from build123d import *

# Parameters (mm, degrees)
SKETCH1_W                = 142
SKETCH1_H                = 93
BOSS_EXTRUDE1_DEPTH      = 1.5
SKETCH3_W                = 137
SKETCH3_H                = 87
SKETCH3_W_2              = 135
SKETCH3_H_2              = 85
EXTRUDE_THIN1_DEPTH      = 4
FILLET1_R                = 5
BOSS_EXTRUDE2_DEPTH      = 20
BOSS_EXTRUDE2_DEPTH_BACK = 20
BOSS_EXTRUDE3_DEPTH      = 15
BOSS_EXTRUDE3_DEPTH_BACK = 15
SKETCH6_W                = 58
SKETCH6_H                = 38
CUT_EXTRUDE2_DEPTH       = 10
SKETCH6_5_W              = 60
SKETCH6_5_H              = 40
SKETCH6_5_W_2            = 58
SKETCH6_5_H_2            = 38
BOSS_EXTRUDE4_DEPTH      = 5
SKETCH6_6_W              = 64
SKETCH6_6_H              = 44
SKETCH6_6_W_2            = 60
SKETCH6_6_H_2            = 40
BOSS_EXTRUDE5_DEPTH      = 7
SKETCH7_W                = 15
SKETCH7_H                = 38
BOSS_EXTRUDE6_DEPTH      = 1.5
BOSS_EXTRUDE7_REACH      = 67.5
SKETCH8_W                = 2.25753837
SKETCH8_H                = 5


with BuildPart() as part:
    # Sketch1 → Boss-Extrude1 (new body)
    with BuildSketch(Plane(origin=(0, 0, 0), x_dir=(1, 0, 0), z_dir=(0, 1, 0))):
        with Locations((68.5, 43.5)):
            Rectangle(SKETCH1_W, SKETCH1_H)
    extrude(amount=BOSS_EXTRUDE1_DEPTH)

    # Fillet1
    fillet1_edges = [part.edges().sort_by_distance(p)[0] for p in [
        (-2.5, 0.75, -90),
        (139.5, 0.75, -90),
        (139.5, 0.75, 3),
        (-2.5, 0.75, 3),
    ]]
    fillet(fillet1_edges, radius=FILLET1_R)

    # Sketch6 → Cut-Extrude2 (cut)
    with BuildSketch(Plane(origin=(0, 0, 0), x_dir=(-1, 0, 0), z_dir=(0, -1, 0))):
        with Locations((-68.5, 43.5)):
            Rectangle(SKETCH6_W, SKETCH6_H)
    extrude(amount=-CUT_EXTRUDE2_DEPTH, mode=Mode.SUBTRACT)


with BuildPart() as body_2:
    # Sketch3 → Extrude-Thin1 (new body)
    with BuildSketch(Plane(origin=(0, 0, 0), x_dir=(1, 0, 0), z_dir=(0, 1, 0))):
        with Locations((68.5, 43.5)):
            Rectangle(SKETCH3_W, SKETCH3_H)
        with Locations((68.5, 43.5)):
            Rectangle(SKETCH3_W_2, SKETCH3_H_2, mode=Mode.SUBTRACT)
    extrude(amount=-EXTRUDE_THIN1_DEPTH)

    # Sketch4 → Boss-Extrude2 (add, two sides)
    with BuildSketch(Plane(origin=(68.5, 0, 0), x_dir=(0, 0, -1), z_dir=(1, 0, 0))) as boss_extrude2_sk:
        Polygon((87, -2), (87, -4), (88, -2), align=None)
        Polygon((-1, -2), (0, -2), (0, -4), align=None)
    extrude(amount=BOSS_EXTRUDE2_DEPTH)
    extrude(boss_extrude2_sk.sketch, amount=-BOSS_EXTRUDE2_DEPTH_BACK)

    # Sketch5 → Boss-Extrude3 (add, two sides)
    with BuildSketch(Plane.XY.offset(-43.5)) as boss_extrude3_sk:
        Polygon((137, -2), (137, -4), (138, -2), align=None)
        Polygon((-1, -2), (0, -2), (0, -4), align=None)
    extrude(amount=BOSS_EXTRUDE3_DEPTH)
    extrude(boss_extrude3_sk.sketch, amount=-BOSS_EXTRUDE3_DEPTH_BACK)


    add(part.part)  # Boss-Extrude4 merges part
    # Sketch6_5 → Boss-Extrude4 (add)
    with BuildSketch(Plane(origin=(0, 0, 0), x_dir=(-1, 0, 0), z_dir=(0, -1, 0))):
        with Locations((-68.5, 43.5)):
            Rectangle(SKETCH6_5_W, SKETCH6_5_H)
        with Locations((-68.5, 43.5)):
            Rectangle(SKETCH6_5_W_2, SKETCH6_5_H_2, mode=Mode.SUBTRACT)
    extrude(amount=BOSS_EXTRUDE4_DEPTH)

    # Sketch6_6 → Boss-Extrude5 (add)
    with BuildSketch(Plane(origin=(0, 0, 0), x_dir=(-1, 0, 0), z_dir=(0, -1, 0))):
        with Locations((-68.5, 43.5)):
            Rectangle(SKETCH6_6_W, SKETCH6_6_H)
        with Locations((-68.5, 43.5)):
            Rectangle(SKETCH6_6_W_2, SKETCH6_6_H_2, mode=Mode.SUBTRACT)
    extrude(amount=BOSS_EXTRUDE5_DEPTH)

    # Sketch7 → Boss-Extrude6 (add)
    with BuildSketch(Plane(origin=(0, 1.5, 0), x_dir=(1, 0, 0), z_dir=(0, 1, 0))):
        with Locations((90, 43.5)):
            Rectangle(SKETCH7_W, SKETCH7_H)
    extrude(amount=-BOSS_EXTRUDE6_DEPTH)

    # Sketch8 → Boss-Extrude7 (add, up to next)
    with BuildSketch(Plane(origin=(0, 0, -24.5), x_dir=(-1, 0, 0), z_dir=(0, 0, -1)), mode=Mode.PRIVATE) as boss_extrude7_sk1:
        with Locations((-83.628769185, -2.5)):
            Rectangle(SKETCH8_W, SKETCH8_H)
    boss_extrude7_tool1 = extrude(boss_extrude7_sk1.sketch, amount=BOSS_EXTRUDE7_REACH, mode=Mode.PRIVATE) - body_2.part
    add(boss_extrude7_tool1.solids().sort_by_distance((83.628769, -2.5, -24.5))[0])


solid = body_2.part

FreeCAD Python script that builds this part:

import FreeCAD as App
import Part
import Sketcher

V = App.Vector
Q = App.Units.Quantity


def edges_at(feature, points):
    """Names of the edges that pass closest to the given points."""
    edges = feature.Shape.Edges
    near = lambda p: min(range(len(edges)), key=lambda i: edges[i].distToShape(Part.Vertex(*p))[0])
    return sorted({f"Edge{near(p) + 1}" for p in points})


def add_polygon(sketch, points):
    """Adds a closed chain of lines whose ends are joined by coincident constraints."""
    first, n = sketch.GeometryCount, len(points)
    for a, b in zip(points, points[1:] + points[:1]):
        sketch.addGeometry(Part.LineSegment(App.Vector(*a, 0), App.Vector(*b, 0)), False)
    for i in range(n):
        sketch.addConstraint(Sketcher.Constraint("Coincident", first + i, 2, first + (i + 1) % n, 1))

doc = App.newDocument("Part")
params = doc.addObject("Spreadsheet::Sheet", "Params")
for row, (alias, value) in enumerate([
    ("sketch1_width", "142 mm"),
    ("sketch1_height", "93 mm"),
    ("pad1_length", "1.5 mm"),
    ("fillet_radius", "5 mm"),
    ("sketch2_width", "58 mm"),
    ("sketch2_height", "38 mm"),
    ("pocket1_length", "10 mm"),
    ("sketch3_width", "137 mm"),
    ("sketch3_width2", "135 mm"),
    ("sketch3_height", "87 mm"),
    ("sketch3_height2", "85 mm"),
    ("pad2_length", "4 mm"),
    ("sketch4_width", "2 mm"),
    ("sketch4_height", "1 mm"),
    ("pad3_length", "20 mm"),
    ("pad3_length2", "20 mm"),
    ("sketch5_width", "1 mm"),
    ("sketch5_height", "2 mm"),
    ("pad4_length", "15 mm"),
    ("pad4_length2", "15 mm"),
    ("sketch6_width", "60 mm"),
    ("sketch6_width2", "58 mm"),
    ("sketch6_height", "40 mm"),
    ("sketch6_height2", "38 mm"),
    ("pad5_length", "5 mm"),
    ("sketch7_width", "64 mm"),
    ("sketch7_width2", "60 mm"),
    ("sketch7_height", "44 mm"),
    ("sketch7_height2", "40 mm"),
    ("pad6_length", "7 mm"),
    ("sketch8_width", "15 mm"),
    ("sketch8_height", "38 mm"),
    ("pad7_length", "1.5 mm"),
    ("sketch9_height", "5 mm"),
], start=1):
    params.set(f"A{row}", alias)
    params.set(f"B{row}", "=" + value)
    params.setAlias(f"B{row}", alias)

body = doc.addObject("PartDesign::Body", "Body")

# Sketch on XZ plane
sketch1 = doc.addObject("Sketcher::SketchObject", "Sketch")
body.addObject(sketch1)
sketch1.AttachmentSupport = (doc.XZ_Plane, [""])
sketch1.MapMode = "FlatFace"
add_polygon(sketch1, [(-2, -90), (-2, 3), (140, 3), (140, -90)])  # lines 0-3
sketch1.addConstraint(Sketcher.Constraint("Vertical", 0))
sketch1.addConstraint(Sketcher.Constraint("Horizontal", 1))
sketch1.addConstraint(Sketcher.Constraint("Vertical", 2))
sketch1.addConstraint(Sketcher.Constraint("Horizontal", 3))
sketch1.addConstraint(Sketcher.Constraint("DistanceX", 1, 1, 1, 2, Q("142 mm")))
sketch1.addConstraint(Sketcher.Constraint("DistanceY", 0, 1, 0, 2, Q("93 mm")))
sketch1.addConstraint(Sketcher.Constraint("DistanceY", -1, 1, 0, 2, Q("3 mm")))
sketch1.addConstraint(Sketcher.Constraint("DistanceX", 0, 2, -1, 1, Q("2.5 mm")))
sketch1.setExpression("Constraints[8]", "Params.sketch1_width")
sketch1.setExpression("Constraints[9]", "Params.sketch1_height")
pad1 = doc.addObject("PartDesign::Pad", "Pad")
body.addObject(pad1)
pad1.Profile = sketch1
pad1.setExpression("Length", "Params.pad1_length")
pad1.Reversed = True
doc.recompute()

fillet = doc.addObject("PartDesign::Fillet", "Fillet")
body.addObject(fillet)
fillet.Base = (pad1, edges_at(pad1, [
    (-2.5, 0.75, -90),
    (139.5, 0.75, -90),
    (139.5, 0.75, 3),
    (-2.5, 0.75, 3),
]))
fillet.setExpression("Radius", "Params.fillet_radius")

# Sketch on XZ plane
sketch2 = doc.addObject("Sketcher::SketchObject", "Sketch001")
body.addObject(sketch2)
sketch2.AttachmentSupport = (doc.XZ_Plane, [""])
sketch2.MapMode = "FlatFace"
add_polygon(sketch2, [(98, -62), (98, -24), (40, -24), (40, -62)])  # lines 0-3
sketch2.addConstraint(Sketcher.Constraint("Vertical", 0))
sketch2.addConstraint(Sketcher.Constraint("Horizontal", 1))
sketch2.addConstraint(Sketcher.Constraint("Vertical", 2))
sketch2.addConstraint(Sketcher.Constraint("Horizontal", 3))
sketch2.addConstraint(Sketcher.Constraint("DistanceX", 1, 2, 1, 1, Q("58 mm")))
sketch2.addConstraint(Sketcher.Constraint("DistanceY", 0, 1, 0, 2, Q("38 mm")))
sketch2.addConstraint(Sketcher.Constraint("DistanceX", -1, 1, 0, 2, Q("97.5 mm")))
sketch2.addConstraint(Sketcher.Constraint("DistanceY", 0, 2, -1, 1, Q("24.5 mm")))
sketch2.setExpression("Constraints[8]", "Params.sketch2_width")
sketch2.setExpression("Constraints[9]", "Params.sketch2_height")
pocket1 = doc.addObject("PartDesign::Pocket", "Pocket")
body.addObject(pocket1)
pocket1.Profile = sketch2
pocket1.setExpression("Length", "Params.pocket1_length")
body2 = doc.addObject("PartDesign::Body", "Body001")

# Sketch on XZ plane
sketch3 = doc.addObject("Sketcher::SketchObject", "Sketch002")
body2.addObject(sketch3)
sketch3.AttachmentSupport = (doc.getObject("XZ_Plane001"), [""])
sketch3.MapMode = "FlatFace"
add_polygon(sketch3, [(0, -87), (0, 0), (137, 0), (137, -87)])  # lines 0-3
add_polygon(sketch3, [(136, -1), (1, -1), (1, -86), (136, -86)])  # lines 4-7
sketch3.addConstraint(Sketcher.Constraint("Vertical", 0))
sketch3.addConstraint(Sketcher.Constraint("Horizontal", 1))
sketch3.addConstraint(Sketcher.Constraint("Vertical", 2))
sketch3.addConstraint(Sketcher.Constraint("Horizontal", 3))
sketch3.addConstraint(Sketcher.Constraint("Horizontal", 4))
sketch3.addConstraint(Sketcher.Constraint("Vertical", 5))
sketch3.addConstraint(Sketcher.Constraint("Horizontal", 6))
sketch3.addConstraint(Sketcher.Constraint("Vertical", 7))
sketch3.addConstraint(Sketcher.Constraint("Coincident", 0, 2, -1, 1))
sketch3.addConstraint(Sketcher.Constraint("DistanceX", 1, 1, 1, 2, Q("137 mm")))
sketch3.addConstraint(Sketcher.Constraint("DistanceX", 4, 2, 4, 1, Q("135 mm")))
sketch3.addConstraint(Sketcher.Constraint("DistanceY", 0, 1, 0, 2, Q("87 mm")))
sketch3.addConstraint(Sketcher.Constraint("DistanceY", 5, 2, 5, 1, Q("85 mm")))
sketch3.addConstraint(Sketcher.Constraint("DistanceX", -1, 1, 4, 2, Q("1 mm")))
sketch3.addConstraint(Sketcher.Constraint("DistanceY", 4, 2, -1, 1, Q("1 mm")))
sketch3.setExpression("Constraints[17]", "Params.sketch3_width")
sketch3.setExpression("Constraints[18]", "Params.sketch3_width2")
sketch3.setExpression("Constraints[19]", "Params.sketch3_height")
sketch3.setExpression("Constraints[20]", "Params.sketch3_height2")
pad2 = doc.addObject("PartDesign::Pad", "Pad001")
body2.addObject(pad2)
pad2.Profile = sketch3
pad2.setExpression("Length", "Params.pad2_length")

# Sketch on YZ plane
sketch4 = doc.addObject("Sketcher::SketchObject", "Sketch003")
body2.addObject(sketch4)
sketch4.AttachmentSupport = (doc.getObject("YZ_Plane001"), [""])
sketch4.MapMode = "FlatFace"
sketch4.AttachmentOffset = App.Placement(V(0, 0, 68.5), App.Rotation())
add_polygon(sketch4, [(-2, -87), (-4, -87), (-2, -88)])  # lines 0-2
add_polygon(sketch4, [(-2, 0), (-2, 1), (-4, 0)])  # lines 3-5
sketch4.addConstraint(Sketcher.Constraint("Horizontal", 0))
sketch4.addConstraint(Sketcher.Constraint("Vertical", 2))
sketch4.addConstraint(Sketcher.Constraint("Vertical", 3))
sketch4.addConstraint(Sketcher.Constraint("Horizontal", 5))
sketch4.addConstraint(Sketcher.Constraint("PointOnObject", 4, 2, -1))
sketch4.addConstraint(Sketcher.Constraint("Vertical", 2, 2, 3, 2))
sketch4.addConstraint(Sketcher.Constraint("Vertical", 0, 2, 4, 2))
sketch4.addConstraint(Sketcher.Constraint("Equal", 2, 3))
sketch4.addConstraint(Sketcher.Constraint("DistanceX", 0, 2, 0, 1, Q("2 mm")))
sketch4.addConstraint(Sketcher.Constraint("DistanceY", 2, 1, 2, 2, Q("1 mm")))
sketch4.addConstraint(Sketcher.Constraint("DistanceX", 0, 2, -1, 1, Q("4 mm")))
sketch4.addConstraint(Sketcher.Constraint("DistanceY", 0, 2, -1, 1, Q("87 mm")))
sketch4.setExpression("Constraints[14]", "Params.sketch4_width")
sketch4.setExpression("Constraints[15]", "Params.sketch4_height")
pad3 = doc.addObject("PartDesign::Pad", "Pad002")
body2.addObject(pad3)
pad3.Profile = sketch4
pad3.Type = "TwoLengths"
pad3.setExpression("Length", "Params.pad3_length")
pad3.setExpression("Length2", "Params.pad3_length2")

# Sketch on XY plane
sketch5 = doc.addObject("Sketcher::SketchObject", "Sketch004")
body2.addObject(sketch5)
sketch5.AttachmentSupport = (doc.getObject("XY_Plane001"), [""])
sketch5.MapMode = "FlatFace"
sketch5.AttachmentOffset = App.Placement(V(0, 0, -43.5), App.Rotation())
add_polygon(sketch5, [(137, -2), (137, -4), (138, -2)])  # lines 0-2
add_polygon(sketch5, [(0, -2), (-1, -2), (0, -4)])  # lines 3-5
sketch5.addConstraint(Sketcher.Constraint("Vertical", 0))
sketch5.addConstraint(Sketcher.Constraint("Horizontal", 2))
sketch5.addConstraint(Sketcher.Constraint("Horizontal", 3))
sketch5.addConstraint(Sketcher.Constraint("Vertical", 5))
sketch5.addConstraint(Sketcher.Constraint("PointOnObject", 4, 2, -2))
sketch5.addConstraint(Sketcher.Constraint("Horizontal", 2, 2, 3, 2))
sketch5.addConstraint(Sketcher.Constraint("Horizontal", 0, 2, 4, 2))
sketch5.addConstraint(Sketcher.Constraint("Equal", 2, 3))
sketch5.addConstraint(Sketcher.Constraint("DistanceX", 2, 2, 2, 1, Q("1 mm")))
sketch5.addConstraint(Sketcher.Constraint("DistanceY", 0, 2, 0, 1, Q("2 mm")))
sketch5.addConstraint(Sketcher.Constraint("DistanceX", -1, 1, 0, 2, Q("137 mm")))
sketch5.addConstraint(Sketcher.Constraint("DistanceY", 0, 2, -1, 1, Q("4 mm")))
sketch5.setExpression("Constraints[14]", "Params.sketch5_width")
sketch5.setExpression("Constraints[15]", "Params.sketch5_height")
pad4 = doc.addObject("PartDesign::Pad", "Pad003")
body2.addObject(pad4)
pad4.Profile = sketch5
pad4.Type = "TwoLengths"
pad4.setExpression("Length", "Params.pad4_length")
pad4.setExpression("Length2", "Params.pad4_length2")
doc.recompute()

boolean = doc.addObject("PartDesign::Boolean", "Boolean")
body2.addObject(boolean)
boolean.Type = "Fuse"
boolean.addObjects([body])

# Sketch on XZ plane
sketch6 = doc.addObject("Sketcher::SketchObject", "Sketch005")
body2.addObject(sketch6)
sketch6.AttachmentSupport = (doc.getObject("XZ_Plane001"), [""])
sketch6.MapMode = "FlatFace"
add_polygon(sketch6, [(98, -64), (98, -24), (38, -24), (38, -64)])  # lines 0-3
add_polygon(sketch6, [(40, -24), (98, -24), (98, -62), (40, -62)])  # lines 4-7
sketch6.addConstraint(Sketcher.Constraint("Vertical", 0))
sketch6.addConstraint(Sketcher.Constraint("Horizontal", 1))
sketch6.addConstraint(Sketcher.Constraint("Vertical", 2))
sketch6.addConstraint(Sketcher.Constraint("Horizontal", 3))
sketch6.addConstraint(Sketcher.Constraint("Horizontal", 4))
sketch6.addConstraint(Sketcher.Constraint("Vertical", 5))
sketch6.addConstraint(Sketcher.Constraint("Horizontal", 6))
sketch6.addConstraint(Sketcher.Constraint("Vertical", 7))
sketch6.addConstraint(Sketcher.Constraint("DistanceX", 1, 2, 1, 1, Q("60 mm")))
sketch6.addConstraint(Sketcher.Constraint("DistanceX", 4, 1, 4, 2, Q("58 mm")))
sketch6.addConstraint(Sketcher.Constraint("DistanceY", 0, 1, 0, 2, Q("40 mm")))
sketch6.addConstraint(Sketcher.Constraint("DistanceY", 5, 2, 5, 1, Q("38 mm")))
sketch6.addConstraint(Sketcher.Constraint("DistanceX", 4, 2, 0, 2, Q("1 mm")))
sketch6.addConstraint(Sketcher.Constraint("DistanceY", 4, 2, 0, 2, Q("1 mm")))
sketch6.addConstraint(Sketcher.Constraint("DistanceX", -1, 1, 0, 2, Q("98.5 mm")))
sketch6.addConstraint(Sketcher.Constraint("DistanceY", 0, 2, -1, 1, Q("23.5 mm")))
sketch6.setExpression("Constraints[16]", "Params.sketch6_width")
sketch6.setExpression("Constraints[17]", "Params.sketch6_width2")
sketch6.setExpression("Constraints[18]", "Params.sketch6_height")
sketch6.setExpression("Constraints[19]", "Params.sketch6_height2")
pad5 = doc.addObject("PartDesign::Pad", "Pad004")
body2.addObject(pad5)
pad5.Profile = sketch6
pad5.setExpression("Length", "Params.pad5_length")

# Sketch on XZ plane
sketch7 = doc.addObject("Sketcher::SketchObject", "Sketch006")
body2.addObject(sketch7)
sketch7.AttachmentSupport = (doc.getObject("XZ_Plane001"), [""])
sketch7.MapMode = "FlatFace"
add_polygon(sketch7, [(100, -66), (100, -22), (36, -22), (36, -66)])  # lines 0-3
add_polygon(sketch7, [(38, -24), (98, -24), (98, -64), (38, -64)])  # lines 4-7
sketch7.addConstraint(Sketcher.Constraint("Vertical", 0))
sketch7.addConstraint(Sketcher.Constraint("Horizontal", 1))
sketch7.addConstraint(Sketcher.Constraint("Vertical", 2))
sketch7.addConstraint(Sketcher.Constraint("Horizontal", 3))
sketch7.addConstraint(Sketcher.Constraint("Horizontal", 4))
sketch7.addConstraint(Sketcher.Constraint("Vertical", 5))
sketch7.addConstraint(Sketcher.Constraint("Horizontal", 6))
sketch7.addConstraint(Sketcher.Constraint("Vertical", 7))
sketch7.addConstraint(Sketcher.Constraint("DistanceX", 1, 2, 1, 1, Q("64 mm")))
sketch7.addConstraint(Sketcher.Constraint("DistanceX", 4, 1, 4, 2, Q("60 mm")))
sketch7.addConstraint(Sketcher.Constraint("DistanceY", 0, 1, 0, 2, Q("44 mm")))
sketch7.addConstraint(Sketcher.Constraint("DistanceY", 5, 2, 5, 1, Q("40 mm")))
sketch7.addConstraint(Sketcher.Constraint("DistanceX", 4, 2, 0, 2, Q("2 mm")))
sketch7.addConstraint(Sketcher.Constraint("DistanceY", 4, 2, 0, 2, Q("2 mm")))
sketch7.addConstraint(Sketcher.Constraint("DistanceX", -1, 1, 0, 2, Q("100.5 mm")))
sketch7.addConstraint(Sketcher.Constraint("DistanceY", 0, 2, -1, 1, Q("21.5 mm")))
sketch7.setExpression("Constraints[16]", "Params.sketch7_width")
sketch7.setExpression("Constraints[17]", "Params.sketch7_width2")
sketch7.setExpression("Constraints[18]", "Params.sketch7_height")
sketch7.setExpression("Constraints[19]", "Params.sketch7_height2")
pad6 = doc.addObject("PartDesign::Pad", "Pad005")
body2.addObject(pad6)
pad6.Profile = sketch7
pad6.setExpression("Length", "Params.pad6_length")

# Sketch on XZ plane
sketch8 = doc.addObject("Sketcher::SketchObject", "Sketch007")
body2.addObject(sketch8)
sketch8.AttachmentSupport = (doc.getObject("XZ_Plane001"), [""])
sketch8.MapMode = "FlatFace"
sketch8.AttachmentOffset = App.Placement(V(0, 0, -1.5), App.Rotation())
add_polygon(sketch8, [(82, -62), (82, -24), (98, -24), (98, -62)])  # lines 0-3
sketch8.addConstraint(Sketcher.Constraint("Vertical", 0))
sketch8.addConstraint(Sketcher.Constraint("Horizontal", 1))
sketch8.addConstraint(Sketcher.Constraint("Vertical", 2))
sketch8.addConstraint(Sketcher.Constraint("Horizontal", 3))
sketch8.addConstraint(Sketcher.Constraint("DistanceX", 1, 1, 1, 2, Q("15 mm")))
sketch8.addConstraint(Sketcher.Constraint("DistanceY", 0, 1, 0, 2, Q("38 mm")))
sketch8.addConstraint(Sketcher.Constraint("DistanceX", -1, 1, 0, 2, Q("82.5 mm")))
sketch8.addConstraint(Sketcher.Constraint("DistanceY", 0, 2, -1, 1, Q("24.5 mm")))
sketch8.setExpression("Constraints[8]", "Params.sketch8_width")
sketch8.setExpression("Constraints[9]", "Params.sketch8_height")
pad7 = doc.addObject("PartDesign::Pad", "Pad006")
body2.addObject(pad7)
pad7.Profile = sketch8
pad7.setExpression("Length", "Params.pad7_length")

# Sketch on XY plane
sketch9 = doc.addObject("Sketcher::SketchObject", "Sketch008")
body2.addObject(sketch9)
sketch9.AttachmentSupport = (doc.getObject("XY_Plane001"), [""])
sketch9.MapMode = "FlatFace"
sketch9.AttachmentOffset = App.Placement(V(0, 0, -24.5), App.Rotation())
add_polygon(sketch9, [(84.8, 0), (84.8, -5), (82.5, -5), (82.5, 0)])  # lines 0-3
sketch9.addConstraint(Sketcher.Constraint("Vertical", 0))
sketch9.addConstraint(Sketcher.Constraint("Horizontal", 1))
sketch9.addConstraint(Sketcher.Constraint("Vertical", 2))
sketch9.addConstraint(Sketcher.Constraint("Horizontal", 3))
sketch9.addConstraint(Sketcher.Constraint("PointOnObject", 2, 2, -1))
sketch9.addConstraint(Sketcher.Constraint("DistanceY", 0, 2, 0, 1, Q("5 mm")))
sketch9.addConstraint(Sketcher.Constraint("DistanceX", -1, 1, 1, 2, Q("82.5 mm")))
sketch9.addConstraint(Sketcher.Constraint("DistanceX", 1, 2, 1, 1, Q("2.257538 mm")))
sketch9.setExpression("Constraints[9]", "Params.sketch9_height")
pad8 = doc.addObject("PartDesign::Pad", "Pad007")
body2.addObject(pad8)
pad8.Profile = sketch9
pad8.Type = "UpToFirst"
pad8.Reversed = True

doc.recompute()
